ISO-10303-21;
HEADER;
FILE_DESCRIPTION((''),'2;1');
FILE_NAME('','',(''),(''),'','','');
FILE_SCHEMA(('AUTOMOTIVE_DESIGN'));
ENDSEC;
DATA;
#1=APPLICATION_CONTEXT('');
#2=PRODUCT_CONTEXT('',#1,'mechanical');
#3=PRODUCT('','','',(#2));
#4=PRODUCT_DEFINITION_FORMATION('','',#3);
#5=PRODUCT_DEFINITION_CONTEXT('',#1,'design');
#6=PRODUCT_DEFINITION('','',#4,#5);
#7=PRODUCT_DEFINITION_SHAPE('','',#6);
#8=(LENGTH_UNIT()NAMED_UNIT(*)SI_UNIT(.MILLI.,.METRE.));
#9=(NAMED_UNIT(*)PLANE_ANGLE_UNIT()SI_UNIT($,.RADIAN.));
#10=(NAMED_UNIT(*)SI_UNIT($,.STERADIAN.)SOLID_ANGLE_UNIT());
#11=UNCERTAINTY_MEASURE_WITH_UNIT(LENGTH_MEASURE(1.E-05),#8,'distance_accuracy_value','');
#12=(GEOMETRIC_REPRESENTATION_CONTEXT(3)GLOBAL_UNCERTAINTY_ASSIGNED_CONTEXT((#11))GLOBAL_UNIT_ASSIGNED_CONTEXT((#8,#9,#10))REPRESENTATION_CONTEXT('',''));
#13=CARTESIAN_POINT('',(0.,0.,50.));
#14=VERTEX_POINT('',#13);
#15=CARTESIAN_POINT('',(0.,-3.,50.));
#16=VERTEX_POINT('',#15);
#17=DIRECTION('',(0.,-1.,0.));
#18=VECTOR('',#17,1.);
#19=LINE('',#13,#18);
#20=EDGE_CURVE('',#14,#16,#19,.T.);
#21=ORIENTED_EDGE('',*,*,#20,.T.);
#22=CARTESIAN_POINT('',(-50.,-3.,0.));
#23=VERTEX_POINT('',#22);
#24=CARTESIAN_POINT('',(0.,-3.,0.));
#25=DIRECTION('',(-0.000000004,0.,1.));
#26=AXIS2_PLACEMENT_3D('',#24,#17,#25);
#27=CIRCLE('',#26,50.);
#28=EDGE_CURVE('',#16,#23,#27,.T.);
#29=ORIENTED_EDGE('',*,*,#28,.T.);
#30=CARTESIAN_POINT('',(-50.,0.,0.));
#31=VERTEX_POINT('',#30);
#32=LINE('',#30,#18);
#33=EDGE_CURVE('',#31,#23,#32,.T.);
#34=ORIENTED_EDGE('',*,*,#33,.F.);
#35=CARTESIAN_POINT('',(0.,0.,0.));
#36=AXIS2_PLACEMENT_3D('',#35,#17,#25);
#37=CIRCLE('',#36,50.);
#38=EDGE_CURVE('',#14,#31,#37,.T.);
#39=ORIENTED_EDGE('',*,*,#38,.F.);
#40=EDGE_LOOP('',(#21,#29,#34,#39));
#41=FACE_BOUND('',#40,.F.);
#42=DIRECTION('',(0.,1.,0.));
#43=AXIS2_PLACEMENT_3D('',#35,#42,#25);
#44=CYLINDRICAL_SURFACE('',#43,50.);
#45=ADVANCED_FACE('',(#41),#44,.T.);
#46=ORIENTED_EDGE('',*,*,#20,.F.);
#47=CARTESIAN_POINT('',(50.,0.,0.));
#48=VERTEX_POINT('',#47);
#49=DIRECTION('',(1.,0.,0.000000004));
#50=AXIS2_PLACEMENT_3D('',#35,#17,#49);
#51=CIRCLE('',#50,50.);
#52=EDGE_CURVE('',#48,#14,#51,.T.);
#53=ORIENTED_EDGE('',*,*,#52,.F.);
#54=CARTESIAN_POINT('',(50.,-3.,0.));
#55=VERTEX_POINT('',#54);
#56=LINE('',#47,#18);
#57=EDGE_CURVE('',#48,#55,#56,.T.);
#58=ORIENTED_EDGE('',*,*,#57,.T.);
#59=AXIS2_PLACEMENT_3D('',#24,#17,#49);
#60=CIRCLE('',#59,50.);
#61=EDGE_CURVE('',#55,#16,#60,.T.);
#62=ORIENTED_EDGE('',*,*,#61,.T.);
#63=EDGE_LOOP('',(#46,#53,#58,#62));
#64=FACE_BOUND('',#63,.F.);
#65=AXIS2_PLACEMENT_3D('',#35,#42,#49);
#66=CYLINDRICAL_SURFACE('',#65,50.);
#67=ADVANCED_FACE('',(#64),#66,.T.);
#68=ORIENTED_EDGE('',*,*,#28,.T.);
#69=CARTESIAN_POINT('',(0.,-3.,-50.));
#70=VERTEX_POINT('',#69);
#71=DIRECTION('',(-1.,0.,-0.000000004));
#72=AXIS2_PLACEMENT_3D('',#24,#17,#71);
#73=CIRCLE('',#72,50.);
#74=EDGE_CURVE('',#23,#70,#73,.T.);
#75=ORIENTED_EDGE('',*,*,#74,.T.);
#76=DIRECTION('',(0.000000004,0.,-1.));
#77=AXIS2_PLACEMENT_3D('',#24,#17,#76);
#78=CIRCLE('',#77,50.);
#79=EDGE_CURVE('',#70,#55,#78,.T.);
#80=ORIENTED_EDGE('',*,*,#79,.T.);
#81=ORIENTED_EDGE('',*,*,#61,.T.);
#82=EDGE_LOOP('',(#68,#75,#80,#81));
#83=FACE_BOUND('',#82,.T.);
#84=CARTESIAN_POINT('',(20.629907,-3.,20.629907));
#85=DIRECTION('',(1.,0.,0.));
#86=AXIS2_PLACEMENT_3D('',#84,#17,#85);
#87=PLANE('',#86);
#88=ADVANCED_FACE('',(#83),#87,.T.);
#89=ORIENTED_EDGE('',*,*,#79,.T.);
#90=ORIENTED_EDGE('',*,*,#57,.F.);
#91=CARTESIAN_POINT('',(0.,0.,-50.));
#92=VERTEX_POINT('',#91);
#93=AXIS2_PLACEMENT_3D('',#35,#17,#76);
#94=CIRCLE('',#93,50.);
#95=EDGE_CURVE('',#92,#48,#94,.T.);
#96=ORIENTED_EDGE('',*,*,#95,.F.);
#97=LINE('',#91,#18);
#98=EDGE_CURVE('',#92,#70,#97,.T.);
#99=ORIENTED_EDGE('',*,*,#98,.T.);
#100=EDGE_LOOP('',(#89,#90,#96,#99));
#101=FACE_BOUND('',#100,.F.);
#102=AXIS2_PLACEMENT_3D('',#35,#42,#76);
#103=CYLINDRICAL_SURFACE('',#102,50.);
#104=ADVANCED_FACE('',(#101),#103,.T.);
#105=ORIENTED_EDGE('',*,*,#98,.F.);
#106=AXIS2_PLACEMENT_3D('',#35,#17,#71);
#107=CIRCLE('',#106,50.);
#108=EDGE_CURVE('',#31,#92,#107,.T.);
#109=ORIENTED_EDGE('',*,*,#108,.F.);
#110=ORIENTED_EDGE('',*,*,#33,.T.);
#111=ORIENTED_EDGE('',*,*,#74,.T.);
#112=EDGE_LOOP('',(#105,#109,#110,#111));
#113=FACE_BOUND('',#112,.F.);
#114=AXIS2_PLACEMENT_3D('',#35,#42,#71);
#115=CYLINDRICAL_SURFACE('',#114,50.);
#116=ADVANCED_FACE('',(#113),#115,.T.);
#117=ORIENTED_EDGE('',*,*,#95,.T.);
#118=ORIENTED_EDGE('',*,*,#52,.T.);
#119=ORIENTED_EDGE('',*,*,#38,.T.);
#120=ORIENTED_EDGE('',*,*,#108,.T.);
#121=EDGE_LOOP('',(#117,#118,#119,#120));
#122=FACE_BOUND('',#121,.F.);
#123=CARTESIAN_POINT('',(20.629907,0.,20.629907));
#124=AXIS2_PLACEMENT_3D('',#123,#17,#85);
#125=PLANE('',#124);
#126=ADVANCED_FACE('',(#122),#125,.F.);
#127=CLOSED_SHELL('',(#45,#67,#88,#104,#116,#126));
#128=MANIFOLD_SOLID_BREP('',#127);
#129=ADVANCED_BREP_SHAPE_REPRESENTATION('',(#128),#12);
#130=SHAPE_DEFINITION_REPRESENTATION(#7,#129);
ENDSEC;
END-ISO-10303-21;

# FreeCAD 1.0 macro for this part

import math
import FreeCAD as App
import Part
import Sketcher

V = App.Vector

doc = App.newDocument("Part")
params = doc.addObject("Spreadsheet::Sheet", "Params")
for row, (alias, value) in enumerate([
    ("sketch1_radius", "50 mm"),
    ("pad1_length", "3 mm"),
], start=1):
    params.set(f"A{row}", alias)
    params.set(f"B{row}", "=" + value)
    params.setAlias(f"B{row}", alias)

body = doc.addObject("PartDesign::Body", "Body")

# Sketch on XZ plane
sketch1 = doc.addObject("Sketcher::SketchObject", "Sketch")
body.addObject(sketch1)
sketch1.AttachmentSupport = (doc.XZ_Plane, [""])
sketch1.MapMode = "FlatFace"
sketch1.addGeometry(Part.ArcOfCircle(Part.Circle(V(0, 0, 0), V(0, 0, 1), 50), math.radians(0), math.radians(90)), False)
sketch1.addGeometry(Part.ArcOfCircle(Part.Circle(V(0, 0, 0), V(0, 0, 1), 50), math.radians(90), math.radians(180)), False)
sketch1.addGeometry(Part.ArcOfCircle(Part.Circle(V(0, 0, 0), V(0, 0, 1), 50), math.radians(-180), math.radians(-90)), False)
sketch1.addGeometry(Part.ArcOfCircle(Part.Circle(V(0, 0, 0), V(0, 0, 1), 50), math.radians(-90), math.radians(0)), False)
sketch1.addConstraint(Sketcher.Constraint("Tangent", 0, 2, 1, 1))
sketch1.addConstraint(Sketcher.Constraint("Tangent", 1, 2, 2, 1))
sketch1.addConstraint(Sketcher.Constraint("Tangent", 2, 2, 3, 1))
sketch1.addConstraint(Sketcher.Constraint("Tangent", 3, 2, 0, 1))
sketch1.addConstraint(Sketcher.Constraint("Coincident", 0, 3, -1, 1))
sketch1.addConstraint(Sketcher.Constraint("Equal", 0, 1))
sketch1.addConstraint(Sketcher.Constraint("PointOnObject", 0, 2, -2))
sketch1.addConstraint(Sketcher.Constraint("PointOnObject", 1, 2, -1))
sketch1.addConstraint(Sketcher.Constraint("PointOnObject", 2, 2, -2))
sketch1.addConstraint(Sketcher.Constraint("PointOnObject", 3, 2, -1))
sketch1.addConstraint(Sketcher.Constraint("Radius", 0, 50.0))
sketch1.setExpression("Constraints[10]", "Params.sketch1_radius")
pad1 = doc.addObject("PartDesign::Pad", "Pad")
body.addObject(pad1)
pad1.Profile = sketch1
pad1.setExpression("Length", "Params.pad1_length")

doc.recompute()
